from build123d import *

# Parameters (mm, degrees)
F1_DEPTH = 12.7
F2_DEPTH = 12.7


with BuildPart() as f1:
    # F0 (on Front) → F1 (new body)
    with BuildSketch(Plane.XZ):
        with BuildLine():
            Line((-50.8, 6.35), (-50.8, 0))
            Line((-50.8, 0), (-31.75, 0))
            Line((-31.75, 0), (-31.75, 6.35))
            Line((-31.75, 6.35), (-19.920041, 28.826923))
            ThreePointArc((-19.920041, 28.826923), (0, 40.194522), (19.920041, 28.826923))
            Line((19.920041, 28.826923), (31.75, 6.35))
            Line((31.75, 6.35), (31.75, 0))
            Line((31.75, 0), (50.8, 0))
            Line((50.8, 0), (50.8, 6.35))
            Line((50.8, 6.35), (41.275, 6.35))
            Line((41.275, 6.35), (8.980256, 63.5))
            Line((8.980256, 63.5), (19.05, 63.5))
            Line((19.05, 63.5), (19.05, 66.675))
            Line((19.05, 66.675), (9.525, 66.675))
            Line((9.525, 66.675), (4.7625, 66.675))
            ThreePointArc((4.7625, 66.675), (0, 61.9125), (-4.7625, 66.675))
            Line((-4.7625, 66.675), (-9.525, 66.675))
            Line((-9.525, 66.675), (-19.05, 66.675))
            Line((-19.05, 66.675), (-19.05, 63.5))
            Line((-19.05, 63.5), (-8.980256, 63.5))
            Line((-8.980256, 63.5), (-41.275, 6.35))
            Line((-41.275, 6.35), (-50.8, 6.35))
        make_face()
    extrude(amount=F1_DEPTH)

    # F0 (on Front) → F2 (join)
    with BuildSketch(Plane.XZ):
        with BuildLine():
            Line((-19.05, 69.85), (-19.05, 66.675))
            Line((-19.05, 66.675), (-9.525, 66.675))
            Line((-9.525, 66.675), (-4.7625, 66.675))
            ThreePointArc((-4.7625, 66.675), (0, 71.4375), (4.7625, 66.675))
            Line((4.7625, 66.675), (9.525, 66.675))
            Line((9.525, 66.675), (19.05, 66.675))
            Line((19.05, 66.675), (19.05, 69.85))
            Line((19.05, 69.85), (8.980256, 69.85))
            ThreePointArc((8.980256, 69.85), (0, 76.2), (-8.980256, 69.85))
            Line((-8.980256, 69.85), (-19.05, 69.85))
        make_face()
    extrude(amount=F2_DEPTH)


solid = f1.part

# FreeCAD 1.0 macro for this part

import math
import FreeCAD as App
import Part
import Sketcher
from FreeCAD import Vector
Q = App.Units.Quantity

doc = App.newDocument("Part")
body = doc.addObject("PartDesign::Body", "Body")

sketch1 = body.newObject("Sketcher::SketchObject", "Sketch")
sketch1.AttachmentSupport = (doc.getObject("XZ_Plane"), [""])
sketch1.MapMode = "FlatFace"
sketch1.addGeometry(Part.LineSegment(Vector(-50.8, 6.35, 0), Vector(-50.8, 0, 0)), False)
sketch1.addGeometry(Part.LineSegment(Vector(-50.8, 0, 0), Vector(-31.75, 0, 0)), False)
sketch1.addGeometry(Part.LineSegment(Vector(-31.75, 0, 0), Vector(-31.75, 6.35, 0)), False)
sketch1.addGeometry(Part.LineSegment(Vector(-31.75, 6.35, 0), Vector(-19.920041, 28.826923, 0)), False)
sketch1.addGeometry(Part.ArcOfCircle(Part.Circle(Vector(0, 17.057255, 0), Vector(0, 0, 1), 23.137267), math.radians(30.576529), math.radians(149.423471)), False)
sketch1.addGeometry(Part.LineSegment(Vector(19.920041, 28.826923, 0), Vector(31.75, 6.35, 0)), False)
sketch1.addGeometry(Part.LineSegment(Vector(31.75, 6.35, 0), Vector(31.75, 0, 0)), False)
sketch1.addGeometry(Part.LineSegment(Vector(31.75, 0, 0), Vector(50.8, 0, 0)), False)
sketch1.addGeometry(Part.LineSegment(Vector(50.8, 0, 0), Vector(50.8, 6.35, 0)), False)
sketch1.addGeometry(Part.LineSegment(Vector(50.8, 6.35, 0), Vector(41.275, 6.35, 0)), False)
sketch1.addGeometry(Part.LineSegment(Vector(41.275, 6.35, 0), Vector(8.980256, 63.5, 0)), False)
sketch1.addGeometry(Part.LineSegment(Vector(8.980256, 63.5, 0), Vector(19.05, 63.5, 0)), False)
sketch1.addGeometry(Part.LineSegment(Vector(19.05, 63.5, 0), Vector(19.05, 66.675, 0)), False)
sketch1.addGeometry(Part.LineSegment(Vector(19.05, 66.675, 0), Vector(4.7625, 66.675, 0)), False)
sketch1.addGeometry(Part.ArcOfCircle(Part.Circle(Vector(0, 66.675, 0), Vector(0, 0, 1), 4.7625), math.radians(180), math.radians(360)), False)
sketch1.addGeometry(Part.LineSegment(Vector(-4.7625, 66.675, 0), Vector(-19.05, 66.675, 0)), False)
sketch1.addGeometry(Part.LineSegment(Vector(-19.05, 66.675, 0), Vector(-19.05, 63.5, 0)), False)
sketch1.addGeometry(Part.LineSegment(Vector(-19.05, 63.5, 0), Vector(-8.980256, 63.5, 0)), False)
sketch1.addGeometry(Part.LineSegment(Vector(-8.980256, 63.5, 0), Vector(-41.275, 6.35, 0)), False)
sketch1.addGeometry(Part.LineSegment(Vector(-41.275, 6.35, 0), Vector(-50.8, 6.35, 0)), False)
sketch1.addConstraint(Sketcher.Constraint("Coincident", 0, 2, 1, 1))
sketch1.addConstraint(Sketcher.Constraint("Coincident", 1, 2, 2, 1))
sketch1.addConstraint(Sketcher.Constraint("Coincident", 2, 2, 3, 1))
sketch1.addConstraint(Sketcher.Constraint("Coincident", 3, 2, 4, 2))
sketch1.addConstraint(Sketcher.Constraint("Coincident", 4, 1, 5, 1))
sketch1.addConstraint(Sketcher.Constraint("Coincident", 5, 2, 6, 1))
sketch1.addConstraint(Sketcher.Constraint("Coincident", 6, 2, 7, 1))
sketch1.addConstraint(Sketcher.Constraint("Coincident", 7, 2, 8, 1))
sketch1.addConstraint(Sketcher.Constraint("Coincident", 8, 2, 9, 1))
sketch1.addConstraint(Sketcher.Constraint("Coincident", 9, 2, 10, 1))
sketch1.addConstraint(Sketcher.Constraint("Coincident", 10, 2, 11, 1))
sketch1.addConstraint(Sketcher.Constraint("Coincident", 11, 2, 12, 1))
sketch1.addConstraint(Sketcher.Constraint("Coincident", 12, 2, 13, 1))
sketch1.addConstraint(Sketcher.Constraint("Coincident", 13, 2, 14, 2))
sketch1.addConstraint(Sketcher.Constraint("Coincident", 14, 1, 15, 1))
sketch1.addConstraint(Sketcher.Constraint("Coincident", 15, 2, 16, 1))
sketch1.addConstraint(Sketcher.Constraint("Coincident", 16, 2, 17, 1))
sketch1.addConstraint(Sketcher.Constraint("Coincident", 17, 2, 18, 1))
sketch1.addConstraint(Sketcher.Constraint("Coincident", 18, 2, 19, 1))
sketch1.addConstraint(Sketcher.Constraint("Coincident", 19, 2, 0, 1))
sketch1.addConstraint(Sketcher.Constraint("Vertical", 0))
sketch1.addConstraint(Sketcher.Constraint("Horizontal", 1))
sketch1.addConstraint(Sketcher.Constraint("Vertical", 2))
sketch1.addConstraint(Sketcher.Constraint("Vertical", 6))
sketch1.addConstraint(Sketcher.Constraint("Horizontal", 7))
sketch1.addConstraint(Sketcher.Constraint("Vertical", 8))
sketch1.addConstraint(Sketcher.Constraint("Horizontal", 9))
sketch1.addConstraint(Sketcher.Constraint("Horizontal", 11))
sketch1.addConstraint(Sketcher.Constraint("Vertical", 12))
sketch1.addConstraint(Sketcher.Constraint("Horizontal", 13))
sketch1.addConstraint(Sketcher.Constraint("Horizontal", 15))
sketch1.addConstraint(Sketcher.Constraint("Vertical", 16))
sketch1.addConstraint(Sketcher.Constraint("Horizontal", 17))
sketch1.addConstraint(Sketcher.Constraint("Horizontal", 19))
sketch1.addConstraint(Sketcher.Constraint("Symmetric", 1, 2, 6, 2, -1, 1))
sketch1.addConstraint(Sketcher.Constraint("Symmetric", 3, 2, 4, 1, -2))
sketch1.addConstraint(Sketcher.Constraint("Symmetric", 0, 2, 7, 2, -2))
sketch1.addConstraint(Sketcher.Constraint("Symmetric", 13, 2, 14, 1, -2))
sketch1.addConstraint(Sketcher.Constraint("Symmetric", 11, 2, 16, 2, -2))
sketch1.addConstraint(Sketcher.Constraint("Symmetric", 9, 2, 18, 2, -2))
sketch1.addConstraint(Sketcher.Constraint("Horizontal", 2, 2, 5, 2))
sketch1.addConstraint(Sketcher.Constraint("Horizontal", 5, 2, 8, 2))
sketch1.addConstraint(Sketcher.Constraint("Horizontal", 14, 3, 12, 2))
sketch1.addConstraint(Sketcher.Constraint("Equal", 11, 17))
sketch1.addConstraint(Sketcher.Constraint("Distance", 3, Q("1 in")))
sketch1.addConstraint(Sketcher.Constraint("DistanceX", 0, 2, -1, 1, Q("2 in")))
sketch1.addConstraint(Sketcher.Constraint("Radius", 14, Q("0.1875 in")))
sketch1.addConstraint(Sketcher.Constraint("DistanceX", 1, 1, 1, 2, Q("0.75 in")))
sketch1.addConstraint(Sketcher.Constraint("DistanceY", 0, 2, 0, 1, Q("0.25 in")))
sketch1.addConstraint(Sketcher.Constraint("DistanceY", -1, 1, 10, 2, Q("2.5 in")))
sketch1.addConstraint(Sketcher.Constraint("DistanceX", 9, 2, 9, 1, Q("0.375 in")))
sketch1.addConstraint(Sketcher.Constraint("DistanceX", 13, 2, 13, 1, Q("0.5625 in")))
sketch1.addConstraint(Sketcher.Constraint("DistanceY", 12, 1, 12, 2, Q("0.125 in")))
sketch1.addConstraint(Sketcher.Constraint("Radius", 4, 23.137267))
sketch1.addConstraint(Sketcher.Constraint("DistanceX", 10, 2, 4, 1, Q("0.4307002 in")))
sketch1.addConstraint(Sketcher.Constraint("Distance", 10, 65.64353))
pad1 = body.newObject("PartDesign::Pad", "Pad")
pad1.Profile = sketch1
pad1.Length = Q("0.5 in")

sketch2 = body.newObject("Sketcher::SketchObject", "Sketch001")
sketch2.AttachmentSupport = (doc.getObject("XZ_Plane"), [""])
sketch2.MapMode = "FlatFace"
sketch2.addGeometry(Part.LineSegment(Vector(-19.05, 69.85, 0), Vector(-19.05, 66.675, 0)), False)
sketch2.addGeometry(Part.LineSegment(Vector(-19.05, 66.675, 0), Vector(-4.7625, 66.675, 0)), False)
sketch2.addGeometry(Part.ArcOfCircle(Part.Circle(Vector(0, 66.675, 0), Vector(0, 0, 1), 4.7625), math.radians(0), math.radians(180)), False)
sketch2.addGeometry(Part.LineSegment(Vector(4.7625, 66.675, 0), Vector(19.05, 66.675, 0)), False)
sketch2.addGeometry(Part.LineSegment(Vector(19.05, 66.675, 0), Vector(19.05, 69.85, 0)), False)
sketch2.addGeometry(Part.LineSegment(Vector(19.05, 69.85, 0), Vector(8.980256, 69.85, 0)), False)
sketch2.addGeometry(Part.ArcOfCircle(Part.Circle(Vector(0, 66.675, 0), Vector(0, 0, 1), 9.525), math.radians(19.47122), math.radians(160.52878)), False)
sketch2.addGeometry(Part.LineSegment(Vector(-8.980256, 69.85, 0), Vector(-19.05, 69.85, 0)), False)
sketch2.addConstraint(Sketcher.Constraint("Coincident", 0, 2, 1, 1))
sketch2.addConstraint(Sketcher.Constraint("Coincident", 1, 2, 2, 2))
sketch2.addConstraint(Sketcher.Constraint("Coincident", 2, 1, 3, 1))
sketch2.addConstraint(Sketcher.Constraint("Coincident", 3, 2, 4, 1))
sketch2.addConstraint(Sketcher.Constraint("Coincident", 4, 2, 5, 1))
sketch2.addConstraint(Sketcher.Constraint("Coincident", 5, 2, 6, 1))
sketch2.addConstraint(Sketcher.Constraint("Coincident", 6, 2, 7, 1))
sketch2.addConstraint(Sketcher.Constraint("Coincident", 7, 2, 0, 1))
sketch2.addConstraint(Sketcher.Constraint("Vertical", 0))
sketch2.addConstraint(Sketcher.Constraint("Horizontal", 1))
sketch2.addConstraint(Sketcher.Constraint("Horizontal", 3))
sketch2.addConstraint(Sketcher.Constraint("Vertical", 4))
sketch2.addConstraint(Sketcher.Constraint("Horizontal", 5))
sketch2.addConstraint(Sketcher.Constraint("Horizontal", 7))
sketch2.addConstraint(Sketcher.Constraint("Coincident", 6, 3, 2, 3))
sketch2.addConstraint(Sketcher.Constraint("Symmetric", 1, 2, 2, 1, -2))
sketch2.addConstraint(Sketcher.Constraint("Symmetric", 4, 2, 7, 2, -2))
sketch2.addConstraint(Sketcher.Constraint("Horizontal", 6, 3, 0, 2))
sketch2.addConstraint(Sketcher.Constraint("Radius", 2, Q("0.1875 in")))
sketch2.addConstraint(Sketcher.Constraint("Radius", 6, Q("0.375 in")))
sketch2.addConstraint(Sketcher.Constraint("DistanceX", 0, 2, 3, 2, Q("1.5 in")))
sketch2.addConstraint(Sketcher.Constraint("DistanceY", 0, 2, 0, 1, Q("0.125 in")))
sketch2.addConstraint(Sketcher.Constraint("DistanceY", -1, 1, 4, 2, Q("2.75 in")))
pad2 = body.newObject("PartDesign::Pad", "Pad001")
pad2.Profile = sketch2
pad2.Length = Q("0.5 in")

doc.recompute()
